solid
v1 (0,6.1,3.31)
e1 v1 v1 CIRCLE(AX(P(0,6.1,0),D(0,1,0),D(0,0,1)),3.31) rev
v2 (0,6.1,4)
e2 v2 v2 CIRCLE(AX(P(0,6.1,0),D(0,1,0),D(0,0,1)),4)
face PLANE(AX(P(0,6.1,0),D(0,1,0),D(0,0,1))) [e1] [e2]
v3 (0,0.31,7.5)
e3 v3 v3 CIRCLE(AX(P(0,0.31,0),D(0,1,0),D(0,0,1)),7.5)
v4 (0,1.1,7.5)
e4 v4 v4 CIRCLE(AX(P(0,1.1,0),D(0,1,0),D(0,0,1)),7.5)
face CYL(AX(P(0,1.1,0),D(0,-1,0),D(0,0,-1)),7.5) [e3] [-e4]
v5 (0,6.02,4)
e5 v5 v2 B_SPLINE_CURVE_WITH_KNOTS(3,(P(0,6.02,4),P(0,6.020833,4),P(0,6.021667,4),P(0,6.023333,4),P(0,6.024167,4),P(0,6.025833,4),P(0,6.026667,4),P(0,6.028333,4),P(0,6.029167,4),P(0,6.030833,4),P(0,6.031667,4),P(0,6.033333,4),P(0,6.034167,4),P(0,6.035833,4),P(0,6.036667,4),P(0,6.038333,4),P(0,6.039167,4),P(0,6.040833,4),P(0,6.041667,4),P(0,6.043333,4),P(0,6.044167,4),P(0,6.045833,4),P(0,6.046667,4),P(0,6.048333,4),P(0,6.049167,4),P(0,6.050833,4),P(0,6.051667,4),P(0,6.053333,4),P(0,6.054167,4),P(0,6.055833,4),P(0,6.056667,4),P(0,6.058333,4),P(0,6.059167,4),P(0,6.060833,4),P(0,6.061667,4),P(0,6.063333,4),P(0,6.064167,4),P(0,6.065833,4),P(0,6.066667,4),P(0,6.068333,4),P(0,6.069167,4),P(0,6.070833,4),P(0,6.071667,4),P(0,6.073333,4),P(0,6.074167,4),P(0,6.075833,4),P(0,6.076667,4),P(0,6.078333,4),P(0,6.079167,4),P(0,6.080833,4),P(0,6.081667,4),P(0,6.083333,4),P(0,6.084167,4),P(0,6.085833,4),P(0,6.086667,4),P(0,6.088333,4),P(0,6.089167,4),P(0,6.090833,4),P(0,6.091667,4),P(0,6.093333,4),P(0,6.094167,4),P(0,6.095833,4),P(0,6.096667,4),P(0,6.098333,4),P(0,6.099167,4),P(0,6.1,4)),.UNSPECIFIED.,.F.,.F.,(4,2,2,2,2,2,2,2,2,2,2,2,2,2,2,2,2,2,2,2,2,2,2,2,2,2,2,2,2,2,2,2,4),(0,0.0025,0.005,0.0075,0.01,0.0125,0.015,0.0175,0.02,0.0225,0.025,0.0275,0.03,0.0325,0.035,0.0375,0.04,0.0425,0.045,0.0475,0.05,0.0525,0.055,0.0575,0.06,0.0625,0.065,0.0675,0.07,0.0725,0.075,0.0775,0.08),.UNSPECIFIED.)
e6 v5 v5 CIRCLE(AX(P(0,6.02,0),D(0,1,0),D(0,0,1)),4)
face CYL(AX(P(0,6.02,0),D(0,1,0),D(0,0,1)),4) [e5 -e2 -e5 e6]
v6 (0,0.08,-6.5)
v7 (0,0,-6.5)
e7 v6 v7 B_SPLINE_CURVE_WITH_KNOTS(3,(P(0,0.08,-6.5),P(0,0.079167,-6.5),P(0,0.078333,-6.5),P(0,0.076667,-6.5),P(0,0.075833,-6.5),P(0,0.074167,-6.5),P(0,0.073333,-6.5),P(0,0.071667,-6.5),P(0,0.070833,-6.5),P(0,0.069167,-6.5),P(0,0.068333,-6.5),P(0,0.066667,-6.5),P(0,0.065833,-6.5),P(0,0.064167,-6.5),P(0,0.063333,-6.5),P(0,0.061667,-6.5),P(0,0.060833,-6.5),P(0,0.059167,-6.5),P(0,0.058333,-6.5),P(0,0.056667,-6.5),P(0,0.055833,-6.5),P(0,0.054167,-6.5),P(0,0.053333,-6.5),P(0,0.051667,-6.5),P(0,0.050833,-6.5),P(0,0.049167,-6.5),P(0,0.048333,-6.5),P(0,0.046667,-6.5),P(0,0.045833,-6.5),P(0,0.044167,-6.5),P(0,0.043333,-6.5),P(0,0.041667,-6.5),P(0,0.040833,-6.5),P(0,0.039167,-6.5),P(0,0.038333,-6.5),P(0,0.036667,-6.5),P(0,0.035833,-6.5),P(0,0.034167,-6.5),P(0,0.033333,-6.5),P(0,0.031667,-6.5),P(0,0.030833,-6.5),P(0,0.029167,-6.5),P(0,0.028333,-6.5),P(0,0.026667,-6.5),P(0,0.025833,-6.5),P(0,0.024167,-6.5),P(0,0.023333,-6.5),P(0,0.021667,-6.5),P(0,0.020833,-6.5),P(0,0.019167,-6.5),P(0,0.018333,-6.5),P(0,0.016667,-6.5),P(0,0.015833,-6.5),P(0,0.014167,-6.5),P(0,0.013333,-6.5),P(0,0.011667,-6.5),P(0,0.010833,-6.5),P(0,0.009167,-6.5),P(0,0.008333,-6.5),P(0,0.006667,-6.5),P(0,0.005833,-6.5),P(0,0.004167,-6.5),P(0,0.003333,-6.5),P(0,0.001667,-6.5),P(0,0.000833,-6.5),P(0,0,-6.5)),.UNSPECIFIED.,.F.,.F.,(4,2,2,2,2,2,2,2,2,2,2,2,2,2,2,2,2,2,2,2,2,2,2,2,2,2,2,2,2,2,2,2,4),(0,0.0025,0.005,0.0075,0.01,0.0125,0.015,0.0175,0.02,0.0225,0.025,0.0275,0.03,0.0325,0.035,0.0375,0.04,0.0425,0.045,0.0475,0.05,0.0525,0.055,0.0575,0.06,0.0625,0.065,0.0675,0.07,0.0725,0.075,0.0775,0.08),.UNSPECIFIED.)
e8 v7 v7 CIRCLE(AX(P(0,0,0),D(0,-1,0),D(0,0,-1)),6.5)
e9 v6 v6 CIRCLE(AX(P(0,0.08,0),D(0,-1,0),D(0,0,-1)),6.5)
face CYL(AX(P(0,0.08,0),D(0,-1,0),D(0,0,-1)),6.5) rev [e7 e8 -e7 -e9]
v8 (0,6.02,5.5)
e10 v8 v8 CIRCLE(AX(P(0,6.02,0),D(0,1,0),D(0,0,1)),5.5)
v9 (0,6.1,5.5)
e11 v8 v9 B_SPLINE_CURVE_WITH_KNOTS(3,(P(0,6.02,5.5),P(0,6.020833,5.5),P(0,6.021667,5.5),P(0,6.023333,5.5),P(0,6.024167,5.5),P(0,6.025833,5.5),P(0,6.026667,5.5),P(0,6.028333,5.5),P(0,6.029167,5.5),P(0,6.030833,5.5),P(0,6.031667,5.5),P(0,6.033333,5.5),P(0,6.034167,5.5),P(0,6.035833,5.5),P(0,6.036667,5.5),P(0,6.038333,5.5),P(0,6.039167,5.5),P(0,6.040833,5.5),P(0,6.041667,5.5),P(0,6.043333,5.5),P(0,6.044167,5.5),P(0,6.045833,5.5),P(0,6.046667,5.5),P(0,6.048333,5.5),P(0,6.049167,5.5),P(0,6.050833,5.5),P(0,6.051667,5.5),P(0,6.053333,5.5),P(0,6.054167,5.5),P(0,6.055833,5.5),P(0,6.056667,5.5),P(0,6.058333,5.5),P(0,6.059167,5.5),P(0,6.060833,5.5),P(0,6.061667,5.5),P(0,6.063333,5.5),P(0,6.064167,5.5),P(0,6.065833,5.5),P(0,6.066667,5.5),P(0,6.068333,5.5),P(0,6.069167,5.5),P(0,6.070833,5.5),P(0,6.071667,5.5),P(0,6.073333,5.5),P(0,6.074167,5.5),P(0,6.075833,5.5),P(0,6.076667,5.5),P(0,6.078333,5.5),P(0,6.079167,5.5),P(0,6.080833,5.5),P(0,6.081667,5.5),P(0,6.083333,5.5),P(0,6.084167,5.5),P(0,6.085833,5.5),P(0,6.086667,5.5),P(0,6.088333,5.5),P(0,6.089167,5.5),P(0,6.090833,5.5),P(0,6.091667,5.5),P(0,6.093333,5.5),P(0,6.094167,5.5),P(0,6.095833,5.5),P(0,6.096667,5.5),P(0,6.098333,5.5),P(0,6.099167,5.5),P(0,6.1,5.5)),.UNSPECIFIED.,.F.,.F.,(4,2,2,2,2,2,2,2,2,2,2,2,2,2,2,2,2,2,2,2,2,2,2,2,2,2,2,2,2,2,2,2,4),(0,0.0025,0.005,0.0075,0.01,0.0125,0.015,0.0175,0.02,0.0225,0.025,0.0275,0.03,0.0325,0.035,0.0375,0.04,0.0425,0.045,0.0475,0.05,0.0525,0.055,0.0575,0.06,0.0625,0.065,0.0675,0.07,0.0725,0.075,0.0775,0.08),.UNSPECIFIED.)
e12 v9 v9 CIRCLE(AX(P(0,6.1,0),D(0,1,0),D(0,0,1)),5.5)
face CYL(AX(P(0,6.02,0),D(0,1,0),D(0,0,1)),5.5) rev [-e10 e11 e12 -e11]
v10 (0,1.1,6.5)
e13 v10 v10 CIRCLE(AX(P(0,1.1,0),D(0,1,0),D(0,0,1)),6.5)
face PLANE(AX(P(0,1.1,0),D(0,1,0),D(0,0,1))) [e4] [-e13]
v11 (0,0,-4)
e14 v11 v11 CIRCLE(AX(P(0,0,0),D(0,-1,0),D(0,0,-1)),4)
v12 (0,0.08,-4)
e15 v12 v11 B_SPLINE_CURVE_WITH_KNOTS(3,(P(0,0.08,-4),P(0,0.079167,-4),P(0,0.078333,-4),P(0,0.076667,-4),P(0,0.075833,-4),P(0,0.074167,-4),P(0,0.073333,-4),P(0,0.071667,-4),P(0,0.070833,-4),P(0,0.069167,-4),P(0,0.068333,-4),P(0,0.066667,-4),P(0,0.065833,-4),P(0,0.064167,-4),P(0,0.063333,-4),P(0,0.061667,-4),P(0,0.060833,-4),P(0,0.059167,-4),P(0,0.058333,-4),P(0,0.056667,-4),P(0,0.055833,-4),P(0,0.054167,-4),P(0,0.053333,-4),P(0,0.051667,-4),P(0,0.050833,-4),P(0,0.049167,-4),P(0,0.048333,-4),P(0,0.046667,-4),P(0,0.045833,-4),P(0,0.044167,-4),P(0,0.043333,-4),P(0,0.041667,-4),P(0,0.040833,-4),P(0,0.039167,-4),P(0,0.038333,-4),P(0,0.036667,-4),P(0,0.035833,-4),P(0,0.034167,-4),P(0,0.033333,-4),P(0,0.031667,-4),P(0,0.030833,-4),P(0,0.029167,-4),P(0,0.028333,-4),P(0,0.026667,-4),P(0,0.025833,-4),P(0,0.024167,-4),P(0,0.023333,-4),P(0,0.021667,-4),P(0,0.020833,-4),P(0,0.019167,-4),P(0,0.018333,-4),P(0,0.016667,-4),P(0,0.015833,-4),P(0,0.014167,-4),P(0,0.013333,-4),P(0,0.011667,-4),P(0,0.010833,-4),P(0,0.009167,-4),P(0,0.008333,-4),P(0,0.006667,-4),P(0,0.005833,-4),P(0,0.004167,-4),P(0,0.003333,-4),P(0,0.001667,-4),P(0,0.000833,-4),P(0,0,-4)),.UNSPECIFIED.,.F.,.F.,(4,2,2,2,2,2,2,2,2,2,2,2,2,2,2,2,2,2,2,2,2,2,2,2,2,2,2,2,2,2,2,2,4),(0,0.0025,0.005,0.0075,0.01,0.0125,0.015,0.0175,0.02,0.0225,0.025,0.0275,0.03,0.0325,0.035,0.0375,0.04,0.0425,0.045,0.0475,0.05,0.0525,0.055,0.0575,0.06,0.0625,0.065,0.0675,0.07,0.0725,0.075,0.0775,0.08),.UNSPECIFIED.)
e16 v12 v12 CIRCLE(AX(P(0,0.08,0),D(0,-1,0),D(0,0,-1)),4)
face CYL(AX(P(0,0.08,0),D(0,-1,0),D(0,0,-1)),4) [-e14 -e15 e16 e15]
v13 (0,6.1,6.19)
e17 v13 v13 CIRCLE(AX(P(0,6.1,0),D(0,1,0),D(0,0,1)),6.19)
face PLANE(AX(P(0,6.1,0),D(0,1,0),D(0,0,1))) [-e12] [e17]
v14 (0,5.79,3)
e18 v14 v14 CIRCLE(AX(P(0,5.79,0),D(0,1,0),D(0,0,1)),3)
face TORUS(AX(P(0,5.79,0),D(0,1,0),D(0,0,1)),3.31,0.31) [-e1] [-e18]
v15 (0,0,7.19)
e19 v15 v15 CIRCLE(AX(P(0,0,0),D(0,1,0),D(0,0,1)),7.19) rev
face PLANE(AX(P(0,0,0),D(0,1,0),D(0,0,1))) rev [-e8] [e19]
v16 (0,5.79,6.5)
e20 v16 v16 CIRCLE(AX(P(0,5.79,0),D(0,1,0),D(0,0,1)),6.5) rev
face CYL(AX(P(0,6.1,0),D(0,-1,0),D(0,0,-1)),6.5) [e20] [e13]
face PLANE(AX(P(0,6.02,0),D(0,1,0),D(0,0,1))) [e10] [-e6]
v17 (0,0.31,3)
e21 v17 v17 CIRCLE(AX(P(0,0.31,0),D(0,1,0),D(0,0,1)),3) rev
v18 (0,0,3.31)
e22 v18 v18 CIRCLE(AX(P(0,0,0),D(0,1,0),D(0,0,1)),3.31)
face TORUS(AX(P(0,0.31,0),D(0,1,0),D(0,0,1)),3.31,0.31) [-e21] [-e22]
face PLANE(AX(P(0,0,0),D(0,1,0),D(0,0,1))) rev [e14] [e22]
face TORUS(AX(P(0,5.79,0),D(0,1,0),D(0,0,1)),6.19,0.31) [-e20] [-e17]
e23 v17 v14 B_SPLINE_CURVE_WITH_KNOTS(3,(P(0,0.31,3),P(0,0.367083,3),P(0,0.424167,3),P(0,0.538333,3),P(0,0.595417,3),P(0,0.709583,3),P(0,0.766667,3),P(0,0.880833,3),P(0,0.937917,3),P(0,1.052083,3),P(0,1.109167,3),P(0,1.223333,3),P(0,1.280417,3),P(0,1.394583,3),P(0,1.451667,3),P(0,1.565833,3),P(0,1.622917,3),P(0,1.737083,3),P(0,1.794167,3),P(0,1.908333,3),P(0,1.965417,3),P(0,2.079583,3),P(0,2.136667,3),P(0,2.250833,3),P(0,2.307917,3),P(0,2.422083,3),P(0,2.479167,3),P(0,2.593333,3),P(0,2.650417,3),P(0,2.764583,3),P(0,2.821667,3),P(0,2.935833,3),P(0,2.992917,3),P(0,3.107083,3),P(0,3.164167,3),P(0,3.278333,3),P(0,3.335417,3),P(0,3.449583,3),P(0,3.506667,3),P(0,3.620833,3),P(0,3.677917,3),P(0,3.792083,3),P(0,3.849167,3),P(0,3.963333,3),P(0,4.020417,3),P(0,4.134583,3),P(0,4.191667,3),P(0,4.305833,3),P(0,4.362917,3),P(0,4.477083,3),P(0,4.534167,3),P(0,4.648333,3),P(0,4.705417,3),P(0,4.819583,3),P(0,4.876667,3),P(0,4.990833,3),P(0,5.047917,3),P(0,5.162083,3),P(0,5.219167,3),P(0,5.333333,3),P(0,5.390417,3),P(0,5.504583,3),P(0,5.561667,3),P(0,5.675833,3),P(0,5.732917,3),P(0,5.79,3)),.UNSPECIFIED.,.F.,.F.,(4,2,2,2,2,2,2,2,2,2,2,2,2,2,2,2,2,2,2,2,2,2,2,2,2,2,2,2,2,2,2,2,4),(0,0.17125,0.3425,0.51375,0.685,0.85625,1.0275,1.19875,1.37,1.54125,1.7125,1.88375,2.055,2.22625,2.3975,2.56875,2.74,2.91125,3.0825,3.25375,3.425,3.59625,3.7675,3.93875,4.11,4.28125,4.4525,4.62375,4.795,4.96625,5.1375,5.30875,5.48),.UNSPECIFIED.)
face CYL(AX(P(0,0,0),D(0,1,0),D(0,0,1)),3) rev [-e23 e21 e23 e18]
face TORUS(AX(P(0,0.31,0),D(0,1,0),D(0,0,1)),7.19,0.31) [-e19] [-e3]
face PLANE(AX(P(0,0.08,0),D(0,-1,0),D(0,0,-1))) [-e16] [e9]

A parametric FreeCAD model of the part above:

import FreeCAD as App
import Part
import Sketcher


def edges_at(feature, points):
    """Names of the edges that pass closest to the given points."""
    edges = feature.Shape.Edges
    near = lambda p: min(range(len(edges)), key=lambda i: edges[i].distToShape(Part.Vertex(*p))[0])
    return sorted({f"Edge{near(p) + 1}" for p in points})

doc = App.newDocument("Part")
params = doc.addObject("Spreadsheet::Sheet", "Params")
for row, (alias, value) in enumerate([
    ("sketch1_diameter", "15 mm"),
    ("pad1_length", "1.1 mm"),
    ("sketch2_diameter", "13 mm"),
    ("pad2_length", "5 mm"),
    ("sketch3_diameter", "6 mm"),
    ("sketch4_diameter", "13 mm"),
    ("sketch4_diameter2", "8 mm"),
    ("pocket2_length", "0.08 mm"),
    ("sketch5_diameter", "11 mm"),
    ("sketch5_diameter2", "8 mm"),
    ("pocket3_length", "0.08 mm"),
    ("fillet_radius", "0.31 mm"),
], start=1):
    params.set(f"A{row}", alias)
    params.set(f"B{row}", "=" + value)
    params.setAlias(f"B{row}", alias)

body = doc.addObject("PartDesign::Body", "Body")

sketch1 = body.newObject("Sketcher::SketchObject", "Sketch")
sketch1.AttachmentSupport = (doc.getObject("XZ_Plane"), [""])
sketch1.MapMode = "FlatFace"
sketch1.addGeometry(Part.Circle(App.Vector(0, 0, 0), App.Vector(0, 0, 1), 8), False)
sketch1.addConstraint([
    Sketcher.Constraint("Coincident", 0, 3, -1, 1),
    Sketcher.Constraint("Diameter", 0, 15.0),
])
sketch1.setExpression("Constraints[1]", "Params.sketch1_diameter")
pad1 = body.newObject("PartDesign::Pad", "Pad")
pad1.Profile = sketch1
pad1.setExpression("Length", "Params.pad1_length")
pad1.Reversed = True

sketch2 = body.newObject("Sketcher::SketchObject", "Sketch001")
sketch2.AttachmentSupport = (doc.getObject("XZ_Plane"), [""])
sketch2.MapMode = "FlatFace"
sketch2.AttachmentOffset = App.Placement(App.Vector(0, 0, -1.1), App.Rotation())
sketch2.addGeometry(Part.Circle(App.Vector(0, 0, 0), App.Vector(0, 0, 1), 6), False)
sketch2.addConstraint([
    Sketcher.Constraint("Coincident", 0, 3, -1, 1),
    Sketcher.Constraint("Diameter", 0, 13.0),
])
sketch2.setExpression("Constraints[1]", "Params.sketch2_diameter")
pad2 = body.newObject("PartDesign::Pad", "Pad001")
pad2.Profile = sketch2
pad2.setExpression("Length", "Params.pad2_length")
pad2.Reversed = True

sketch3 = body.newObject("Sketcher::SketchObject", "Sketch002")
sketch3.AttachmentSupport = (doc.getObject("XZ_Plane"), [""])
sketch3.MapMode = "FlatFace"
sketch3.AttachmentOffset = App.Placement(App.Vector(0, 0, -6.1), App.Rotation())
sketch3.addGeometry(Part.Circle(App.Vector(0, 0, 0), App.Vector(0, 0, 1), 3), False)
sketch3.addConstraint([
    Sketcher.Constraint("Coincident", 0, 3, -1, 1),
    Sketcher.Constraint("Diameter", 0, 6.0),
])
sketch3.setExpression("Constraints[1]", "Params.sketch3_diameter")
pocket1 = body.newObject("PartDesign::Pocket", "Pocket")
pocket1.Profile = sketch3
pocket1.Type = "ThroughAll"
pocket1.Reversed = True

sketch4 = body.newObject("Sketcher::SketchObject", "Sketch003")
sketch4.AttachmentSupport = (doc.getObject("XZ_Plane"), [""])
sketch4.MapMode = "FlatFace"
sketch4.addGeometry([
    Part.Circle(App.Vector(0, 0, 0), App.Vector(0, 0, 1), 6.5),
    Part.Circle(App.Vector(0, 0, 0), App.Vector(0, 0, 1), 4),
], False)
sketch4.addConstraint([
    Sketcher.Constraint("Coincident", 0, 3, -1, 1),
    Sketcher.Constraint("Coincident", 1, 3, -1, 1),
    Sketcher.Constraint("Diameter", 0, 13.0),
    Sketcher.Constraint("Diameter", 1, 8.0),
])
sketch4.setExpression("Constraints[2]", "Params.sketch4_diameter")
sketch4.setExpression("Constraints[3]", "Params.sketch4_diameter2")
pocket2 = body.newObject("PartDesign::Pocket", "Pocket001")
pocket2.Profile = sketch4
pocket2.setExpression("Length", "Params.pocket2_length")

sketch5 = body.newObject("Sketcher::SketchObject", "Sketch004")
sketch5.AttachmentSupport = (doc.getObject("XZ_Plane"), [""])
sketch5.MapMode = "FlatFace"
sketch5.AttachmentOffset = App.Placement(App.Vector(0, 0, -6.02), App.Rotation())
sketch5.addGeometry([
    Part.Circle(App.Vector(0, 0, 0), App.Vector(0, 0, 1), 5.5),
    Part.Circle(App.Vector(0, 0, 0), App.Vector(0, 0, 1), 4),
], False)
sketch5.addConstraint([
    Sketcher.Constraint("Coincident", 0, 3, -1, 1),
    Sketcher.Constraint("Coincident", 1, 3, -1, 1),
    Sketcher.Constraint("Diameter", 0, 11.0),
    Sketcher.Constraint("Diameter", 1, 8.0),
])
sketch5.setExpression("Constraints[2]", "Params.sketch5_diameter")
sketch5.setExpression("Constraints[3]", "Params.sketch5_diameter2")
pocket3 = body.newObject("PartDesign::Pocket", "Pocket002")
pocket3.Profile = sketch5
pocket3.setExpression("Length", "Params.pocket3_length")
doc.recompute()

fillet = body.newObject("PartDesign::Fillet", "Fillet")
fillet.Base = (pocket3, edges_at(pocket3, [
    (0, 0, -3),
    (0, 6.1, -3),
    (0, 0, -7.5),
    (0, 6.1, -6.5),
]))
fillet.setExpression("Radius", "Params.fillet_radius")

doc.recompute()
